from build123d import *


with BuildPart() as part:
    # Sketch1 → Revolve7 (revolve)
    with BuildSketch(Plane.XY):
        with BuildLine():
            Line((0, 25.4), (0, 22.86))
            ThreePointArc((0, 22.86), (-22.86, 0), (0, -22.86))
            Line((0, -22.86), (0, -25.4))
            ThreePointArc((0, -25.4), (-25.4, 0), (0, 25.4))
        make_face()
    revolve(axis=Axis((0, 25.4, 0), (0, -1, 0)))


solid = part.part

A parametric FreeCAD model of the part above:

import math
import FreeCAD as App
import Part
import Sketcher
Q = App.Units.Quantity

doc = App.newDocument("Part")
body = doc.addObject("PartDesign::Body", "Body")

# Sketch on XY plane
sketch1 = body.newObject("Sketcher::SketchObject", "Sketch")
sketch1.AttachmentSupport = (doc.getObject("XY_Plane"), [""])
sketch1.MapMode = "FlatFace"
sketch1.addGeometry([
    Part.LineSegment(App.Vector(0, 22.9, 0), App.Vector(0, 25.4, 0)),
    Part.ArcOfCircle(Part.Circle(App.Vector(0, 0, 0), App.Vector(0, 0, 1), 25.4), math.radians(90), math.radians(270)),
    Part.LineSegment(App.Vector(0, -25.4, 0), App.Vector(0, -22.9, 0)),
    Part.ArcOfCircle(Part.Circle(App.Vector(0, 0, 0), App.Vector(0, 0, 1), 22.9), math.radians(90), math.radians(270)),
], False)
sketch1.addConstraint([
    Sketcher.Constraint("Coincident", 0, 2, 1, 1),
    Sketcher.Constraint("Coincident", 1, 2, 2, 1),
    Sketcher.Constraint("Coincident", 2, 2, 3, 2),
    Sketcher.Constraint("Coincident", 3, 1, 0, 1),
    Sketcher.Constraint("Vertical", 0),
    Sketcher.Constraint("Vertical", 2),
    Sketcher.Constraint("Coincident", 1, 3, -1, 1),
    Sketcher.Constraint("Coincident", 3, 3, -1, 1),
    Sketcher.Constraint("PointOnObject", 0, 2, -2),
    Sketcher.Constraint("PointOnObject", 1, 2, -2),
    Sketcher.Constraint("Radius", 1, Q("1 in")),
    Sketcher.Constraint("Radius", 3, Q("0.9 in")),
])
revolution = body.newObject("PartDesign::Revolution", "Revolution")
revolution.Profile = sketch1
revolution.ReferenceAxis = (sketch1, ["V_Axis"])
revolution.Angle = 360

doc.recompute()
